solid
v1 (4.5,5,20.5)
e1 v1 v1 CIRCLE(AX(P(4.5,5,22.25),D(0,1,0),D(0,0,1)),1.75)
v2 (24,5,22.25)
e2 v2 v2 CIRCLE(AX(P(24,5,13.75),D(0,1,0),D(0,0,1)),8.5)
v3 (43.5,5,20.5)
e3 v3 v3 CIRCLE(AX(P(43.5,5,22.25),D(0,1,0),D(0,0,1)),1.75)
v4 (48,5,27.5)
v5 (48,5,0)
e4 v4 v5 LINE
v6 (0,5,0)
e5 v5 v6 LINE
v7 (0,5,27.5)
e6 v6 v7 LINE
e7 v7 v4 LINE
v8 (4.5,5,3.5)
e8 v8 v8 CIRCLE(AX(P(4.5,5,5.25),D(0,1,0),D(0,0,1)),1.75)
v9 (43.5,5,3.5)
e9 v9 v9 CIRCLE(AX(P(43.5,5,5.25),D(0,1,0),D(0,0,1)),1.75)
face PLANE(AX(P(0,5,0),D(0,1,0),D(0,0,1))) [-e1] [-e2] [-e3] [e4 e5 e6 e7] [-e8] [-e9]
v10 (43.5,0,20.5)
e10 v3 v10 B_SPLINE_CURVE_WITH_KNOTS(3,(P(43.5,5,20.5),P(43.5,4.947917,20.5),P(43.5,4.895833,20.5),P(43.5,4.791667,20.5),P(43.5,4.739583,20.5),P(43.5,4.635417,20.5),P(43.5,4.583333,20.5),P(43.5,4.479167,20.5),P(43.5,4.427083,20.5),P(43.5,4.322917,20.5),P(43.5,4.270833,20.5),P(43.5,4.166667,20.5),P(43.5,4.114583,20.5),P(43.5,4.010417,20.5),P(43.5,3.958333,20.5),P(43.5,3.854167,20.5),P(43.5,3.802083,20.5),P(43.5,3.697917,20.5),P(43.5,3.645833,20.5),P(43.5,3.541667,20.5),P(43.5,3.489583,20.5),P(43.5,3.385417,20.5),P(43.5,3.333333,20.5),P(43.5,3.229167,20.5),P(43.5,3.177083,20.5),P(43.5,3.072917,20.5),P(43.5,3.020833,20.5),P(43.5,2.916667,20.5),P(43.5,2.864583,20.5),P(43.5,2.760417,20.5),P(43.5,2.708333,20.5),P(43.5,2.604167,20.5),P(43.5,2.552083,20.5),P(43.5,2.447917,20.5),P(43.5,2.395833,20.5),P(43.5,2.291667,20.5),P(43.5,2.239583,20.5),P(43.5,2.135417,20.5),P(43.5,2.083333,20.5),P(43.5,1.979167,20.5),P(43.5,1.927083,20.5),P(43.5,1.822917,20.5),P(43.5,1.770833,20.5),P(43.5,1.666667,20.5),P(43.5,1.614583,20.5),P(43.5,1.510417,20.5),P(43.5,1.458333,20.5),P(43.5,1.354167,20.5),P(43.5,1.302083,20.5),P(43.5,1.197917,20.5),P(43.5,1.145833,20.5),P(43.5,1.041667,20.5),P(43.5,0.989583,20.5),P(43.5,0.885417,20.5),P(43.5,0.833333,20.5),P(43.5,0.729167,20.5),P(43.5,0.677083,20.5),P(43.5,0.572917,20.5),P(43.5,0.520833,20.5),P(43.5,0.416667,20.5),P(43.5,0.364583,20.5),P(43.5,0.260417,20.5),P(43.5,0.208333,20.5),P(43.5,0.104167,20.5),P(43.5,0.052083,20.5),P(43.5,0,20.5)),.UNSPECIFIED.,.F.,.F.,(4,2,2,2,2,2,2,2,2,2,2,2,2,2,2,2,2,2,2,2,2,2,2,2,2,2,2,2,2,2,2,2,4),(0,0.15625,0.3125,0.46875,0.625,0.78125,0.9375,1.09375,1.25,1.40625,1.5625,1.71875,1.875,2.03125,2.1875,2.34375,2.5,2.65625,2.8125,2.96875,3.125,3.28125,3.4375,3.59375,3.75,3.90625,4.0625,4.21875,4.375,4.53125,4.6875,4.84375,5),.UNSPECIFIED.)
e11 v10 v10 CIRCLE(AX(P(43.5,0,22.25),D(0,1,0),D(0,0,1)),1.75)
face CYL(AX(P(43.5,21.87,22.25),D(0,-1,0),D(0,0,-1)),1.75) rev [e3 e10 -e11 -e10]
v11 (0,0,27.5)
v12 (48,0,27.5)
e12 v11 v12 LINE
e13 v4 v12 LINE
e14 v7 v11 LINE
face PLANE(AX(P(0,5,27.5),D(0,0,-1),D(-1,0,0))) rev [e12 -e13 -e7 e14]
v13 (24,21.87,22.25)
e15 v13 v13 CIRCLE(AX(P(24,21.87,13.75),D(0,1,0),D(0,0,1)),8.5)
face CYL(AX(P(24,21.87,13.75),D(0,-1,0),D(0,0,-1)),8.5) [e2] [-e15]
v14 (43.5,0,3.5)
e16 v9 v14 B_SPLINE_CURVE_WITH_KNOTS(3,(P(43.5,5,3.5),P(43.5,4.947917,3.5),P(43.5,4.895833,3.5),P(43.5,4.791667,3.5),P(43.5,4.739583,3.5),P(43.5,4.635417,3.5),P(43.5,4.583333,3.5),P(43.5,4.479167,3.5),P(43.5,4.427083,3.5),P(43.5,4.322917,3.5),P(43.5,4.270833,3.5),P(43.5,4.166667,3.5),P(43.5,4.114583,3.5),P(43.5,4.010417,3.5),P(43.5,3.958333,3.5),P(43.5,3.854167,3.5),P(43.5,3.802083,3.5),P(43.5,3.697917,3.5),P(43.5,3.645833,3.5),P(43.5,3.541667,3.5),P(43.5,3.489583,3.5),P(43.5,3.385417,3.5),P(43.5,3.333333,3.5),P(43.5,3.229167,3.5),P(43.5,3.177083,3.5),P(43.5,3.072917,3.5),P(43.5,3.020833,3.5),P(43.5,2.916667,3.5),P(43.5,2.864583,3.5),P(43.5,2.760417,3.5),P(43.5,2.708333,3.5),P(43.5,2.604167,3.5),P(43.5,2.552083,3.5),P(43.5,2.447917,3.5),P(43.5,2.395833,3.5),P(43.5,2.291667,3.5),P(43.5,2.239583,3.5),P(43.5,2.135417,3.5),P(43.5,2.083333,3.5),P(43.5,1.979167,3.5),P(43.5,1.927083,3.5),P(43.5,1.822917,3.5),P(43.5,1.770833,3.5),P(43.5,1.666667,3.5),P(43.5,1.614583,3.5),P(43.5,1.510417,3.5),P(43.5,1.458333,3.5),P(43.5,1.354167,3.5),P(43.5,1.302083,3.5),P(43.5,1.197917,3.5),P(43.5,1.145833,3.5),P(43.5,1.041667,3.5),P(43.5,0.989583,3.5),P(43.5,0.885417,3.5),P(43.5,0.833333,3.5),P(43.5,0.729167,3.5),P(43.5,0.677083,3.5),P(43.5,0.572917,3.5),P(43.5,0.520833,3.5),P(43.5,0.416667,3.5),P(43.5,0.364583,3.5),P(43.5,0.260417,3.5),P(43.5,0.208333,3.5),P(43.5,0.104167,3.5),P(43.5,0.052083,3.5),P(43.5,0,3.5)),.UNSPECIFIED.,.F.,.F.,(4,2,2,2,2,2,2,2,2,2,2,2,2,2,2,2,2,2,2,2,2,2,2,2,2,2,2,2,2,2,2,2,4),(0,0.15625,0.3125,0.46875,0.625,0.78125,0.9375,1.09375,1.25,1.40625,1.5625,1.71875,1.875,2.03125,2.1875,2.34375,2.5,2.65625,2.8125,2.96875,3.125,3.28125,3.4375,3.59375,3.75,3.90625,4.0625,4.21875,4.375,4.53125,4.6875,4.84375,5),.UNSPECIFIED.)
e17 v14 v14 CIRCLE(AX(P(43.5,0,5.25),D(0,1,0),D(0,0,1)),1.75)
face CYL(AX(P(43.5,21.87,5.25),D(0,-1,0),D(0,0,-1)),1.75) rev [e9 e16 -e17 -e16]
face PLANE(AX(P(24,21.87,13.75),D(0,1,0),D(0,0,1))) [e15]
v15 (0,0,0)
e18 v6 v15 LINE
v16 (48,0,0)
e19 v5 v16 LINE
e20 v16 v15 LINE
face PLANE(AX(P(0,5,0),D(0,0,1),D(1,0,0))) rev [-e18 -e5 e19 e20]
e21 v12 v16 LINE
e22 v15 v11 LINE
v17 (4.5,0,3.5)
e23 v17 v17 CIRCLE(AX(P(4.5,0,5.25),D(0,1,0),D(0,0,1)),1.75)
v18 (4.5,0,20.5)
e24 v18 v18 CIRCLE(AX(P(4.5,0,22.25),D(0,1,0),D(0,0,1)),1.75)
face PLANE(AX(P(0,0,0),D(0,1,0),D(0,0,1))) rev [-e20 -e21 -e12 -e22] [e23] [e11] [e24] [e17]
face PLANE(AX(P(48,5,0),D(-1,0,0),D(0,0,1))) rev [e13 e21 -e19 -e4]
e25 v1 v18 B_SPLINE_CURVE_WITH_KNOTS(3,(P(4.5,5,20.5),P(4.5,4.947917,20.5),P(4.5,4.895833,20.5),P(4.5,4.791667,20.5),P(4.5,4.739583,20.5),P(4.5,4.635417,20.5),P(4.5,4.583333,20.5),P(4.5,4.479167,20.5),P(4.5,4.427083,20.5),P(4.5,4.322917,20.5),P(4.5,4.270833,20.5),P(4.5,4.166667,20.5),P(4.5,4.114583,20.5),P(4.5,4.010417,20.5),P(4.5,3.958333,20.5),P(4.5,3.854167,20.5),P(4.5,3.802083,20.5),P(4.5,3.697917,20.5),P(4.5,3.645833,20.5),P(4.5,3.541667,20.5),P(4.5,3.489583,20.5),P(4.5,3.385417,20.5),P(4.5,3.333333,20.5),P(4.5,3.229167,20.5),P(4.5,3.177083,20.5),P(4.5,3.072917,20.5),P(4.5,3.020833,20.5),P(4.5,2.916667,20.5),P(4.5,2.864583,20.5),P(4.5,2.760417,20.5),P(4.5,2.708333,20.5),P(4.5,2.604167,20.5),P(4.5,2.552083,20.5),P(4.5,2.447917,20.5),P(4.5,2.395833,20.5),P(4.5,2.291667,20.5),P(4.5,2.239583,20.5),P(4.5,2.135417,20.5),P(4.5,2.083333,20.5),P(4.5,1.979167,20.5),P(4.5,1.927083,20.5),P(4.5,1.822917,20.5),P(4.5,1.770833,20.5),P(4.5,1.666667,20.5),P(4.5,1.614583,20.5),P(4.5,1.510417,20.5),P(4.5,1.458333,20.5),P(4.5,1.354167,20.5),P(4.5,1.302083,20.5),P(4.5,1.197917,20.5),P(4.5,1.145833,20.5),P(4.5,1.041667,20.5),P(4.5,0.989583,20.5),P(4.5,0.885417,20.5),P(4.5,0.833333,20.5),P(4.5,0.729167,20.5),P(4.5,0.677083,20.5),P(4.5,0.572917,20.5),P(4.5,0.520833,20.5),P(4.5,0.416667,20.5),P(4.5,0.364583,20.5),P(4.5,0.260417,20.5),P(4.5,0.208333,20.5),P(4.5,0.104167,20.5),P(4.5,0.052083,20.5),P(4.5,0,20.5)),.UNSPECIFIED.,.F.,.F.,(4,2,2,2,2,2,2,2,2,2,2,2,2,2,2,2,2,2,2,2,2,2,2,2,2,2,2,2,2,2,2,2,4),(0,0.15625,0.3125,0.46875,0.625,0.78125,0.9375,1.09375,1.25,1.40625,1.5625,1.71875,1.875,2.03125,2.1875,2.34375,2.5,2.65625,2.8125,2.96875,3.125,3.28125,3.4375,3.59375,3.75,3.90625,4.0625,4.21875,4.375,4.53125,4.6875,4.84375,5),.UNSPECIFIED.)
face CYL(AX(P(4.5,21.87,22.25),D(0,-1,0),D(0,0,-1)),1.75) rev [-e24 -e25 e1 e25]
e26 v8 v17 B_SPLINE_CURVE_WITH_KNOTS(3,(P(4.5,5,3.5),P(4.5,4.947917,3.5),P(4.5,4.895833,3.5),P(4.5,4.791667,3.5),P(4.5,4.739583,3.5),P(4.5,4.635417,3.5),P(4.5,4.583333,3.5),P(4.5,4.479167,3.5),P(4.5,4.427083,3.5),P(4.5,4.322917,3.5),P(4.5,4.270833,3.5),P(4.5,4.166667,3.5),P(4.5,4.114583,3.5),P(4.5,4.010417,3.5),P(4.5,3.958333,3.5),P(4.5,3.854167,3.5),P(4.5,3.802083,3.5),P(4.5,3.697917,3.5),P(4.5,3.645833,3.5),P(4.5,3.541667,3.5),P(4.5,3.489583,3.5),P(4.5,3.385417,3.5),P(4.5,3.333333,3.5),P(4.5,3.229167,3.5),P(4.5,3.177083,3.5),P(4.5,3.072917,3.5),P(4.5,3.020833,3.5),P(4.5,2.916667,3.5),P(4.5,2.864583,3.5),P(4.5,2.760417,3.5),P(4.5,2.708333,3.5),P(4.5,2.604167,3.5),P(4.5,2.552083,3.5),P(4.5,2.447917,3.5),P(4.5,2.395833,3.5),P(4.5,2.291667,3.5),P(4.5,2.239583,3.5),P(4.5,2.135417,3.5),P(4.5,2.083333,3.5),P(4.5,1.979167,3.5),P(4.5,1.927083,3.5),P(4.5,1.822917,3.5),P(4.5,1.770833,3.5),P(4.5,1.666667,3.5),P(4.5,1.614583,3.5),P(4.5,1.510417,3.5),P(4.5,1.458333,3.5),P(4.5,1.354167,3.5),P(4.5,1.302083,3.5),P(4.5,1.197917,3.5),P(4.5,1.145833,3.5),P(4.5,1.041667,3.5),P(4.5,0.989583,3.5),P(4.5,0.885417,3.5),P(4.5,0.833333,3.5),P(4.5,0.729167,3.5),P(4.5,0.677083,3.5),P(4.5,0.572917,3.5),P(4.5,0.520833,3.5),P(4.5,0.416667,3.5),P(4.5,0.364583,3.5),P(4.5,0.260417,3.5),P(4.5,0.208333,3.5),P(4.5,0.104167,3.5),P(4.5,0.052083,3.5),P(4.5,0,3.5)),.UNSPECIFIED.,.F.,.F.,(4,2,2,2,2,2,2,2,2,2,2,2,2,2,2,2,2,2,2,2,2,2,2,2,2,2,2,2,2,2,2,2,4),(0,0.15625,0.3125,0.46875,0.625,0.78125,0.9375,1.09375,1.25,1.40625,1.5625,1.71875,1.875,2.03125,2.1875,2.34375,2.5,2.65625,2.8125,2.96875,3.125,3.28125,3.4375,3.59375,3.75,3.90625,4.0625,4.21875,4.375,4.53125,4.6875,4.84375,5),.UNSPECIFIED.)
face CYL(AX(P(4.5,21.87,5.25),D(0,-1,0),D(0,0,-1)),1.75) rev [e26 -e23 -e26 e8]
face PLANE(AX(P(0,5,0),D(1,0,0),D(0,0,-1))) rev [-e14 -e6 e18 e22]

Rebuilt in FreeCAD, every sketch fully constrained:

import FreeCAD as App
import Part
import Sketcher
from FreeCAD import Vector
Q = App.Units.Quantity


def add_polygon(sketch, points):
    """Adds a closed chain of lines whose ends are joined by coincident constraints."""
    first, n = sketch.GeometryCount, len(points)
    for a, b in zip(points, points[1:] + points[:1]):
        sketch.addGeometry(Part.LineSegment(App.Vector(*a, 0), App.Vector(*b, 0)), False)
    for i in range(n):
        sketch.addConstraint(Sketcher.Constraint("Coincident", first + i, 2, first + (i + 1) % n, 1))

doc = App.newDocument("Part")
body = doc.addObject("PartDesign::Body", "Body")

# Sketch on XZ plane
sketch1 = body.newObject("Sketcher::SketchObject", "Sketch")
sketch1.AttachmentSupport = (doc.getObject("XZ_Plane"), [""])
sketch1.MapMode = "FlatFace"
add_polygon(sketch1, [(0, 0), (0, 28), (48, 28), (48, 0)])  # lines 0-3
sketch1.addConstraint([
    Sketcher.Constraint("Vertical", 0),
    Sketcher.Constraint("Horizontal", 1),
    Sketcher.Constraint("Vertical", 2),
    Sketcher.Constraint("Horizontal", 3),
    Sketcher.Constraint("Coincident", 3, 2, -1, 1),
    Sketcher.Constraint("DistanceX", 1, 1, 1, 2, Q("48 mm")),
    Sketcher.Constraint("DistanceY", 0, 1, 0, 2, Q("27.5 mm")),
])
pad1 = body.newObject("PartDesign::Pad", "Pad")
pad1.Profile = sketch1
pad1.Length = 5
pad1.Reversed = True

# Sketch on XZ plane
sketch2 = body.newObject("Sketcher::SketchObject", "Sketch001")
sketch2.AttachmentSupport = (doc.getObject("XZ_Plane"), [""])
sketch2.MapMode = "FlatFace"
sketch2.AttachmentOffset = App.Placement(Vector(0, 0, -5), App.Rotation())
sketch2.addGeometry(Part.Circle(Vector(24, 14, 0), Vector(0, 0, 1), 8), False)
sketch2.addConstraint([
    Sketcher.Constraint("Diameter", 0, Q("17 mm")),
    Sketcher.Constraint("DistanceX", -1, 1, 0, 3, Q("24 mm")),
    Sketcher.Constraint("DistanceY", -1, 1, 0, 3, Q("13.75 mm")),
])
pad2 = body.newObject("PartDesign::Pad", "Pad001")
pad2.Profile = sketch2
pad2.Length = 16.87
pad2.Reversed = True

# Sketch on XZ plane
sketch3 = body.newObject("Sketcher::SketchObject", "Sketch002")
sketch3.AttachmentSupport = (doc.getObject("XZ_Plane"), [""])
sketch3.MapMode = "FlatFace"
sketch3.addGeometry([
    Part.Circle(Vector(4.5, 22.2, 0), Vector(0, 0, 1), 1.8),
    Part.Circle(Vector(43.5, 22.2, 0), Vector(0, 0, 1), 1.8),
    Part.Circle(Vector(43.5, 5.2, 0), Vector(0, 0, 1), 1.8),
    Part.Circle(Vector(4.5, 5.2, 0), Vector(0, 0, 1), 1.8),
], False)
sketch3.addConstraint([
    Sketcher.Constraint("Equal", 0, 1),
    Sketcher.Constraint("Equal", 1, 2),
    Sketcher.Constraint("Equal", 2, 3),
    Sketcher.Constraint("Horizontal", 0, 3, 1, 3),
    Sketcher.Constraint("Horizontal", 2, 3, 3, 3),
    Sketcher.Constraint("Vertical", 1, 3, 2, 3),
    Sketcher.Constraint("Vertical", 0, 3, 3, 3),
    Sketcher.Constraint("Diameter", 0, Q("3.5 mm")),
    Sketcher.Constraint("DistanceX", 0, 3, 1, 3, Q("39 mm")),
    Sketcher.Constraint("DistanceY", 2, 3, 1, 3, Q("17 mm")),
    Sketcher.Constraint("DistanceX", -1, 1, 0, 3, Q("4.5 mm")),
    Sketcher.Constraint("DistanceY", -1, 1, 0, 3, Q("22.25 mm")),
])
pocket1 = body.newObject("PartDesign::Pocket", "Pocket")
pocket1.Profile = sketch3
pocket1.Type = "ThroughAll"
pocket1.Midplane = True

doc.recompute()
